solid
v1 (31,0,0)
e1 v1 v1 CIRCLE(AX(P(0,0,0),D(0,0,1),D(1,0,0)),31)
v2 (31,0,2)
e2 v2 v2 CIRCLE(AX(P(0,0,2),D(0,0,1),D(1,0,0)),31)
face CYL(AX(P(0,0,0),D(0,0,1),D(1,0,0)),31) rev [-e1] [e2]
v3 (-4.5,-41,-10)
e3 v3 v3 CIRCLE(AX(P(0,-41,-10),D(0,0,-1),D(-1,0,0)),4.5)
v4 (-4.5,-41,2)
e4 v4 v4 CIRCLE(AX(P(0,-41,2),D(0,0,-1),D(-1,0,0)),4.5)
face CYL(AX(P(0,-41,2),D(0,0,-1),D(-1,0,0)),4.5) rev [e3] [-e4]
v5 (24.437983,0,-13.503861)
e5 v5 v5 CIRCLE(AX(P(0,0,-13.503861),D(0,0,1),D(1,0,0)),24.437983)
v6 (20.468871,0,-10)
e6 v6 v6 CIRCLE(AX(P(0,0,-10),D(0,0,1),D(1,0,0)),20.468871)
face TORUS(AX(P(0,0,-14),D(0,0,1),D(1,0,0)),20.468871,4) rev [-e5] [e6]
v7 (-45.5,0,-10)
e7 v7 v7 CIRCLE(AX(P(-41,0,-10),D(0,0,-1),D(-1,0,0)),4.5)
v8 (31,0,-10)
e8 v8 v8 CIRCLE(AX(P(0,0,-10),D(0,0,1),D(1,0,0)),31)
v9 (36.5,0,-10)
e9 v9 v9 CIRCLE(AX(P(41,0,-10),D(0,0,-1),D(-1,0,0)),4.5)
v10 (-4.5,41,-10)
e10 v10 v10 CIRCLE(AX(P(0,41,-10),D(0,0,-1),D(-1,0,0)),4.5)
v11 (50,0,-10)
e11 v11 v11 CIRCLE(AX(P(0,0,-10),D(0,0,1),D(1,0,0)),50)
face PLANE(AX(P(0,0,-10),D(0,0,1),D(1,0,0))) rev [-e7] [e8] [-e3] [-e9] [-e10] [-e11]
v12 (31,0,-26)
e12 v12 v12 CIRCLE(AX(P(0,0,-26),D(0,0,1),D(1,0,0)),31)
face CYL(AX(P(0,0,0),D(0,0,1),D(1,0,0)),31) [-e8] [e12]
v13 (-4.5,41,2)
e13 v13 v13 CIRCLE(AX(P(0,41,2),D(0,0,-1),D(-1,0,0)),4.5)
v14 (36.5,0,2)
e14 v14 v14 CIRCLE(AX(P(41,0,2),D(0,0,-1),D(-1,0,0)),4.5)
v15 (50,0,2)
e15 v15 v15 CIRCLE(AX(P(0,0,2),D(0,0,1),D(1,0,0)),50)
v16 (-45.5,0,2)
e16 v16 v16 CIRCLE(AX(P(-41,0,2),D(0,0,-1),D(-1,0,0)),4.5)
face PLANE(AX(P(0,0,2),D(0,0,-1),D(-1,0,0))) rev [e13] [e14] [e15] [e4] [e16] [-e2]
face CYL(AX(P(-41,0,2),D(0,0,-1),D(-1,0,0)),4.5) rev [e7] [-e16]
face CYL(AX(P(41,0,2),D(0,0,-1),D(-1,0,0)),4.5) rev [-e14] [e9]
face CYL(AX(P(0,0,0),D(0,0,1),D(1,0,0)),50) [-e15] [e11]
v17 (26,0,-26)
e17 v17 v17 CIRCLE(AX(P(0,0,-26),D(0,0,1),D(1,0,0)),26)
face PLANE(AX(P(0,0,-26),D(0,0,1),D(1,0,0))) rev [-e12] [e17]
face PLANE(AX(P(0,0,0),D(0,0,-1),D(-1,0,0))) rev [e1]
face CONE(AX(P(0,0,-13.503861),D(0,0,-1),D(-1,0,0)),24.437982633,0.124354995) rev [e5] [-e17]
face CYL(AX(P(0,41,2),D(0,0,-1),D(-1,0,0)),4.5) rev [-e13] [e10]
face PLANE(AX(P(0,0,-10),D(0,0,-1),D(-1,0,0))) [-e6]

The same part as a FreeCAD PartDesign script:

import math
import FreeCAD as App
import Part
import Sketcher

V = App.Vector
Q = App.Units.Quantity

doc = App.newDocument("Part")
body = doc.addObject("PartDesign::Body", "Body")

# Sketch on XZ plane
sketch1 = body.newObject("Sketcher::SketchObject", "Sketch")
sketch1.AttachmentSupport = (doc.getObject("XZ_Plane"), [""])
sketch1.MapMode = "FlatFace"
sketch1.addGeometry(Part.LineSegment(V(0, -10, 0), V(-20.468871, -10, 0)), False)
sketch1.addGeometry(Part.ArcOfCircle(Part.Circle(V(-20.468871, -14, 0), V(0, 0, 1), 4), math.radians(90), math.radians(172.874984)), False)
sketch1.addGeometry(Part.LineSegment(V(-24.437983, -13.503861, 0), V(-26, -26, 0)), False)
sketch1.addGeometry(Part.LineSegment(V(-26, -26, 0), V(-31, -26, 0)), False)
sketch1.addGeometry(Part.LineSegment(V(-31, -26, 0), V(-31, -10, 0)), False)
sketch1.addGeometry(Part.LineSegment(V(-31, -10, 0), V(-50, -10, 0)), False)
sketch1.addGeometry(Part.LineSegment(V(-50, -10, 0), V(-50, 2, 0)), False)
sketch1.addGeometry(Part.LineSegment(V(-50, 2, 0), V(-31, 2, 0)), False)
sketch1.addGeometry(Part.LineSegment(V(-31, 2, 0), V(-31, 0, 0)), False)
sketch1.addGeometry(Part.LineSegment(V(-31, 0, 0), V(0, 0, 0)), False)
sketch1.addGeometry(Part.LineSegment(V(0, 0, 0), V(0, -10, 0)), False)
sketch1.addConstraint(Sketcher.Constraint("Tangent", 0, 2, 1, 1))
sketch1.addConstraint(Sketcher.Constraint("Tangent", 1, 2, 2, 1))
sketch1.addConstraint(Sketcher.Constraint("Coincident", 2, 2, 3, 1))
sketch1.addConstraint(Sketcher.Constraint("Coincident", 3, 2, 4, 1))
sketch1.addConstraint(Sketcher.Constraint("Coincident", 4, 2, 5, 1))
sketch1.addConstraint(Sketcher.Constraint("Coincident", 5, 2, 6, 1))
sketch1.addConstraint(Sketcher.Constraint("Coincident", 6, 2, 7, 1))
sketch1.addConstraint(Sketcher.Constraint("Coincident", 7, 2, 8, 1))
sketch1.addConstraint(Sketcher.Constraint("Coincident", 8, 2, 9, 1))
sketch1.addConstraint(Sketcher.Constraint("Coincident", 9, 2, 10, 1))
sketch1.addConstraint(Sketcher.Constraint("Coincident", 10, 2, 0, 1))
sketch1.addConstraint(Sketcher.Constraint("Horizontal", 0))
sketch1.addConstraint(Sketcher.Constraint("Horizontal", 3))
sketch1.addConstraint(Sketcher.Constraint("Vertical", 4))
sketch1.addConstraint(Sketcher.Constraint("Horizontal", 5))
sketch1.addConstraint(Sketcher.Constraint("Vertical", 6))
sketch1.addConstraint(Sketcher.Constraint("Horizontal", 7))
sketch1.addConstraint(Sketcher.Constraint("Vertical", 8))
sketch1.addConstraint(Sketcher.Constraint("Horizontal", 9))
sketch1.addConstraint(Sketcher.Constraint("Vertical", 10))
sketch1.addConstraint(Sketcher.Constraint("Coincident", 9, 2, -1, 1))
sketch1.addConstraint(Sketcher.Constraint("Horizontal", 0, 2, 4, 2))
sketch1.addConstraint(Sketcher.Constraint("Vertical", 4, 2, 7, 2))
sketch1.addConstraint(Sketcher.Constraint("Radius", 1, Q("4 mm")))
sketch1.addConstraint(Sketcher.Constraint("DistanceX", 3, 2, 3, 1, Q("5 mm")))
sketch1.addConstraint(Sketcher.Constraint("DistanceX", 5, 2, 5, 1, Q("19 mm")))
sketch1.addConstraint(Sketcher.Constraint("DistanceX", 9, 1, 9, 2, Q("31 mm")))
sketch1.addConstraint(Sketcher.Constraint("DistanceY", 4, 1, 4, 2, Q("16 mm")))
sketch1.addConstraint(Sketcher.Constraint("DistanceY", 6, 1, 6, 2, Q("12 mm")))
sketch1.addConstraint(Sketcher.Constraint("DistanceY", 8, 2, 8, 1, Q("2 mm")))
sketch1.addConstraint(Sketcher.Constraint("DistanceX", 0, 2, 0, 1, Q("20.468871 mm")))
revolution = body.newObject("PartDesign::Revolution", "Revolution")
revolution.Profile = sketch1
revolution.ReferenceAxis = (sketch1, ["V_Axis"])
revolution.Angle = 360

# Sketch on XY plane
sketch2 = body.newObject("Sketcher::SketchObject", "Sketch001")
sketch2.AttachmentSupport = (doc.getObject("XY_Plane"), [""])
sketch2.MapMode = "FlatFace"
sketch2.AttachmentOffset = App.Placement(V(0, 0, -10), App.Rotation())
sketch2.addGeometry(Part.Circle(V(-41, 0, 0), V(0, 0, 1), 4.5), False)
sketch2.addGeometry(Part.Circle(V(0, -41, 0), V(0, 0, 1), 4.5), False)
sketch2.addGeometry(Part.Circle(V(41, 0, 0), V(0, 0, 1), 4.5), False)
sketch2.addGeometry(Part.Circle(V(0, 41, 0), V(0, 0, 1), 4.5), False)
sketch2.addConstraint(Sketcher.Constraint("Equal", 0, 1))
sketch2.addConstraint(Sketcher.Constraint("Equal", 1, 2))
sketch2.addConstraint(Sketcher.Constraint("Equal", 2, 3))
sketch2.addConstraint(Sketcher.Constraint("Symmetric", 0, 3, 2, 3, -1, 1))
sketch2.addConstraint(Sketcher.Constraint("Symmetric", 1, 3, 3, 3, -1, 1))
sketch2.addConstraint(Sketcher.Constraint("PointOnObject", 0, 3, -1))
sketch2.addConstraint(Sketcher.Constraint("PointOnObject", 1, 3, -2))
sketch2.addConstraint(Sketcher.Constraint("Diameter", 0, Q("9 mm")))
sketch2.addConstraint(Sketcher.Constraint("DistanceX", 0, 3, -1, 1, Q("41 mm")))
sketch2.addConstraint(Sketcher.Constraint("DistanceY", 1, 3, -1, 1, Q("41 mm")))
pocket1 = body.newObject("PartDesign::Pocket", "Pocket")
pocket1.Profile = sketch2
pocket1.Type = "ThroughAll"
pocket1.Reversed = True

doc.recompute()
